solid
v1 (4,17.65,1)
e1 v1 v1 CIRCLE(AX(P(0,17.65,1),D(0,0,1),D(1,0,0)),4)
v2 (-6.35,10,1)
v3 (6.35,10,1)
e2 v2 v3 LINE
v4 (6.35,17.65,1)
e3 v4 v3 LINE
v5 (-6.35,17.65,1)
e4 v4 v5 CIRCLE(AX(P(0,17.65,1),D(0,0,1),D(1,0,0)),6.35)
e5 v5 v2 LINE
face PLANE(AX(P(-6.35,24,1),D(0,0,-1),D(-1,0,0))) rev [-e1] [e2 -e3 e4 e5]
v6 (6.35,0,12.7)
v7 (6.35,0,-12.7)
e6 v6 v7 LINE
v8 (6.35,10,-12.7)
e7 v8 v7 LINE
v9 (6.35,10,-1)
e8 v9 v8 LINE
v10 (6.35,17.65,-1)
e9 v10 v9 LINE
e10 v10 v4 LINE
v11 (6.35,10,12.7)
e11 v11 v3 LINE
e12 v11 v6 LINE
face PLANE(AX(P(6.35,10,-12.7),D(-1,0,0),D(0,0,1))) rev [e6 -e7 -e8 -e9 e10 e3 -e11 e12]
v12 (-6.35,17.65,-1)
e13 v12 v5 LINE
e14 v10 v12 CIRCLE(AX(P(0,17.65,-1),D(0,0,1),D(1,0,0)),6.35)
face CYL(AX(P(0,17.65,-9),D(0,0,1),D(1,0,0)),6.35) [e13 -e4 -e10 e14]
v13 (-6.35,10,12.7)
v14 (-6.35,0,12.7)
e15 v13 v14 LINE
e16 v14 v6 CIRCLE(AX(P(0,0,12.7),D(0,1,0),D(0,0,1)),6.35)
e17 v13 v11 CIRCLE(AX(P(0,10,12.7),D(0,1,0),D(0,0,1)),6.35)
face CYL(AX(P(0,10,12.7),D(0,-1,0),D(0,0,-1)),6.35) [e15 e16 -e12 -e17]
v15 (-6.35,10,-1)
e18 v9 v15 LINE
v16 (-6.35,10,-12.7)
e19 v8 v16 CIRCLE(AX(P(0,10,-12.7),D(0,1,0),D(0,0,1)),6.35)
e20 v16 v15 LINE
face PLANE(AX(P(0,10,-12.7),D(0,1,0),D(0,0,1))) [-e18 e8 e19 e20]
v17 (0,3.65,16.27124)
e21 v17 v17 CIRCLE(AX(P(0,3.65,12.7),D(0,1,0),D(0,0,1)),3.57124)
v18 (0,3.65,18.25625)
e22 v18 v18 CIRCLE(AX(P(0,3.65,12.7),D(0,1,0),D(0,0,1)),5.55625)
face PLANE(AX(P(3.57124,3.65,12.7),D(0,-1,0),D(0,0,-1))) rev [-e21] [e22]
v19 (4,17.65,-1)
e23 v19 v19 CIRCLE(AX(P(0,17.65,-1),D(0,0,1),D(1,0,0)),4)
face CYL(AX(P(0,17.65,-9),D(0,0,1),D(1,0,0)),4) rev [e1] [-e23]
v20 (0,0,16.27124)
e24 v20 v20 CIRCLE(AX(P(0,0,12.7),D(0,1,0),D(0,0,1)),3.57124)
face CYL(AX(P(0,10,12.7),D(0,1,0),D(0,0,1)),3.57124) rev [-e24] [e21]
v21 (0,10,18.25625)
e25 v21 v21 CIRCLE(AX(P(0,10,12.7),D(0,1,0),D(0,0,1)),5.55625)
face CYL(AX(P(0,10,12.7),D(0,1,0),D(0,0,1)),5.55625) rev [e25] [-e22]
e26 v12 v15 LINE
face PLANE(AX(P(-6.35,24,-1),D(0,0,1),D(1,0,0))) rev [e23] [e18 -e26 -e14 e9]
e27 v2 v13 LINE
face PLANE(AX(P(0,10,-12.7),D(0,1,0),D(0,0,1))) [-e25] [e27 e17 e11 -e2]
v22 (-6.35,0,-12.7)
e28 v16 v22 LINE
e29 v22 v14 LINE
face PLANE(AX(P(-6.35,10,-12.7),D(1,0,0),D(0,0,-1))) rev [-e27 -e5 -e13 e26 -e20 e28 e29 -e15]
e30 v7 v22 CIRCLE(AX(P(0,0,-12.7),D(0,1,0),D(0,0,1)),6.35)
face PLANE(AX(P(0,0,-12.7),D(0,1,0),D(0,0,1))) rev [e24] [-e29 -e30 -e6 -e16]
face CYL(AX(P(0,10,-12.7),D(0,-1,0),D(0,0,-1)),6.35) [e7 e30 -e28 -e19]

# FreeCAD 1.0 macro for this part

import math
import FreeCAD as App
import Part
import Sketcher
from FreeCAD import Vector
Q = App.Units.Quantity


def add_polygon(sketch, points):
    """Adds a closed chain of lines whose ends are joined by coincident constraints."""
    first, n = sketch.GeometryCount, len(points)
    for a, b in zip(points, points[1:] + points[:1]):
        sketch.addGeometry(Part.LineSegment(App.Vector(*a, 0), App.Vector(*b, 0)), False)
    for i in range(n):
        sketch.addConstraint(Sketcher.Constraint("Coincident", first + i, 2, first + (i + 1) % n, 1))

doc = App.newDocument("Part")
body = doc.addObject("PartDesign::Body", "Body")

# Sketch on XZ plane
sketch1 = body.newObject("Sketcher::SketchObject", "Sketch")
sketch1.AttachmentSupport = (doc.getObject("XZ_Plane"), [""])
sketch1.MapMode = "FlatFace"
sketch1.addGeometry(Part.LineSegment(Vector(6, 13, 0), Vector(6, -13, 0)), False)
sketch1.addGeometry(Part.ArcOfCircle(Part.Circle(Vector(0, -13, 0), Vector(0, 0, 1), 6), math.radians(180), math.radians(360)), False)
sketch1.addGeometry(Part.LineSegment(Vector(-6, -13, 0), Vector(-6, 13, 0)), False)
sketch1.addGeometry(Part.ArcOfCircle(Part.Circle(Vector(0, 13, 0), Vector(0, 0, 1), 6), math.radians(0), math.radians(180)), False)
sketch1.addConstraint(Sketcher.Constraint("Tangent", 0, 2, 1, 2))
sketch1.addConstraint(Sketcher.Constraint("Tangent", 1, 1, 2, 1))
sketch1.addConstraint(Sketcher.Constraint("Tangent", 2, 2, 3, 2))
sketch1.addConstraint(Sketcher.Constraint("Tangent", 3, 1, 0, 1))
sketch1.addConstraint(Sketcher.Constraint("Vertical", 0))
sketch1.addConstraint(Sketcher.Constraint("Vertical", 2))
sketch1.addConstraint(Sketcher.Constraint("Symmetric", 1, 3, 3, 3, -1, 1))
sketch1.addConstraint(Sketcher.Constraint("Radius", 1, Q("6.35 mm")))
sketch1.addConstraint(Sketcher.Constraint("DistanceY", 0, 2, 0, 1, Q("25.4 mm")))
pad1 = body.newObject("PartDesign::Pad", "Pad")
pad1.Profile = sketch1
pad1.Length = 10
pad1.Reversed = True

# Sketch on XZ plane
sketch2 = body.newObject("Sketcher::SketchObject", "Sketch001")
sketch2.AttachmentSupport = (doc.getObject("XZ_Plane"), [""])
sketch2.MapMode = "FlatFace"
sketch2.AttachmentOffset = App.Placement(Vector(0, 0, -10), App.Rotation())
sketch2.addGeometry(Part.Circle(Vector(0, 12.7, 0), Vector(0, 0, 1), 3.6), False)
sketch2.addConstraint(Sketcher.Constraint("PointOnObject", 0, 3, -2))
sketch2.addConstraint(Sketcher.Constraint("DistanceY", -1, 1, 0, 3, Q("12.7 mm")))
sketch2.addConstraint(Sketcher.Constraint("Diameter", 0, Q("7.14248 mm")))
doc.recompute()
hole = body.newObject("PartDesign::Hole", "Hole")
hole.Profile = sketch2
hole.ThreadType = "None"
hole.Diameter = 7.14248
hole.DepthType = "ThroughAll"
hole.HoleCutType = "Counterbore"
hole.HoleCutDiameter = 11.1125
hole.HoleCutDepth = 6.35
hole.Reversed = True

# Sketch on XZ plane
sketch3 = body.newObject("Sketcher::SketchObject", "Sketch002")
sketch3.AttachmentSupport = (doc.getObject("XZ_Plane"), [""])
sketch3.MapMode = "FlatFace"
sketch3.AttachmentOffset = App.Placement(Vector(0, 0, -10), App.Rotation())
add_polygon(sketch3, [(-6.3, -1), (-6.3, 1), (6.3, 1), (6.3, -1)])  # lines 0-3
sketch3.addConstraint(Sketcher.Constraint("Vertical", 0))
sketch3.addConstraint(Sketcher.Constraint("Horizontal", 1))
sketch3.addConstraint(Sketcher.Constraint("Vertical", 2))
sketch3.addConstraint(Sketcher.Constraint("Horizontal", 3))
sketch3.addConstraint(Sketcher.Constraint("Symmetric", 0, 2, 2, 2, -1, 1))
sketch3.addConstraint(Sketcher.Constraint("DistanceY", 0, 1, 0, 2, Q("2 mm")))
sketch3.addConstraint(Sketcher.Constraint("DistanceX", 1, 1, 1, 2, Q("12.7 mm")))
pad2 = body.newObject("PartDesign::Pad", "Pad001")
pad2.Profile = sketch3
pad2.Length = 14
pad2.Reversed = True

# Sketch on XY plane
sketch4 = body.newObject("Sketcher::SketchObject", "Sketch003")
sketch4.AttachmentSupport = (doc.getObject("XY_Plane"), [""])
sketch4.MapMode = "FlatFace"
sketch4.AttachmentOffset = App.Placement(Vector(0, 0, 1), App.Rotation())
sketch4.addGeometry(Part.LineSegment(Vector(-6, 24, 0), Vector(-6, 18, 0)), False)
sketch4.addGeometry(Part.ArcOfCircle(Part.Circle(Vector(0, 18, 0), Vector(0, 0, 1), 6), math.radians(90), math.radians(180)), False)
sketch4.addGeometry(Part.LineSegment(Vector(0, 24, 0), Vector(-6, 24, 0)), False)
sketch4.addGeometry(Part.LineSegment(Vector(6, 24, 0), Vector(0, 24, 0)), False)
sketch4.addGeometry(Part.ArcOfCircle(Part.Circle(Vector(0, 18, 0), Vector(0, 0, 1), 6), math.radians(0), math.radians(90)), False)
sketch4.addGeometry(Part.LineSegment(Vector(6, 18, 0), Vector(6, 24, 0)), False)
sketch4.addConstraint(Sketcher.Constraint("Tangent", 0, 2, 1, 2))
sketch4.addConstraint(Sketcher.Constraint("Tangent", 1, 1, 2, 1))
sketch4.addConstraint(Sketcher.Constraint("Coincident", 2, 2, 0, 1))
sketch4.addConstraint(Sketcher.Constraint("Tangent", 3, 2, 4, 2))
sketch4.addConstraint(Sketcher.Constraint("Tangent", 4, 1, 5, 1))
sketch4.addConstraint(Sketcher.Constraint("Coincident", 5, 2, 3, 1))
sketch4.addConstraint(Sketcher.Constraint("Vertical", 0))
sketch4.addConstraint(Sketcher.Constraint("Horizontal", 2))
sketch4.addConstraint(Sketcher.Constraint("Horizontal", 3))
sketch4.addConstraint(Sketcher.Constraint("Vertical", 5))
sketch4.addConstraint(Sketcher.Constraint("Coincident", 4, 3, 1, 3))
sketch4.addConstraint(Sketcher.Constraint("Equal", 1, 4))
sketch4.addConstraint(Sketcher.Constraint("PointOnObject", 1, 3, -2))
sketch4.addConstraint(Sketcher.Constraint("Radius", 1, Q("6.35 mm")))
sketch4.addConstraint(Sketcher.Constraint("DistanceY", -1, 1, 1, 1, Q("24 mm")))
pocket1 = body.newObject("PartDesign::Pocket", "Pocket")
pocket1.Profile = sketch4
pocket1.Length = 10

# Sketch on XY plane
sketch5 = body.newObject("Sketcher::SketchObject", "Sketch004")
sketch5.AttachmentSupport = (doc.getObject("XY_Plane"), [""])
sketch5.MapMode = "FlatFace"
sketch5.AttachmentOffset = App.Placement(Vector(0, 0, 1), App.Rotation())
sketch5.addGeometry(Part.Circle(Vector(0, 17.6, 0), Vector(0, 0, 1), 4), False)
sketch5.addConstraint(Sketcher.Constraint("PointOnObject", 0, 3, -2))
sketch5.addConstraint(Sketcher.Constraint("Diameter", 0, Q("8 mm")))
sketch5.addConstraint(Sketcher.Constraint("DistanceY", -1, 1, 0, 3, Q("17.65 mm")))
pocket2 = body.newObject("PartDesign::Pocket", "Pocket001")
pocket2.Profile = sketch5
pocket2.Length = 10

doc.recompute()
